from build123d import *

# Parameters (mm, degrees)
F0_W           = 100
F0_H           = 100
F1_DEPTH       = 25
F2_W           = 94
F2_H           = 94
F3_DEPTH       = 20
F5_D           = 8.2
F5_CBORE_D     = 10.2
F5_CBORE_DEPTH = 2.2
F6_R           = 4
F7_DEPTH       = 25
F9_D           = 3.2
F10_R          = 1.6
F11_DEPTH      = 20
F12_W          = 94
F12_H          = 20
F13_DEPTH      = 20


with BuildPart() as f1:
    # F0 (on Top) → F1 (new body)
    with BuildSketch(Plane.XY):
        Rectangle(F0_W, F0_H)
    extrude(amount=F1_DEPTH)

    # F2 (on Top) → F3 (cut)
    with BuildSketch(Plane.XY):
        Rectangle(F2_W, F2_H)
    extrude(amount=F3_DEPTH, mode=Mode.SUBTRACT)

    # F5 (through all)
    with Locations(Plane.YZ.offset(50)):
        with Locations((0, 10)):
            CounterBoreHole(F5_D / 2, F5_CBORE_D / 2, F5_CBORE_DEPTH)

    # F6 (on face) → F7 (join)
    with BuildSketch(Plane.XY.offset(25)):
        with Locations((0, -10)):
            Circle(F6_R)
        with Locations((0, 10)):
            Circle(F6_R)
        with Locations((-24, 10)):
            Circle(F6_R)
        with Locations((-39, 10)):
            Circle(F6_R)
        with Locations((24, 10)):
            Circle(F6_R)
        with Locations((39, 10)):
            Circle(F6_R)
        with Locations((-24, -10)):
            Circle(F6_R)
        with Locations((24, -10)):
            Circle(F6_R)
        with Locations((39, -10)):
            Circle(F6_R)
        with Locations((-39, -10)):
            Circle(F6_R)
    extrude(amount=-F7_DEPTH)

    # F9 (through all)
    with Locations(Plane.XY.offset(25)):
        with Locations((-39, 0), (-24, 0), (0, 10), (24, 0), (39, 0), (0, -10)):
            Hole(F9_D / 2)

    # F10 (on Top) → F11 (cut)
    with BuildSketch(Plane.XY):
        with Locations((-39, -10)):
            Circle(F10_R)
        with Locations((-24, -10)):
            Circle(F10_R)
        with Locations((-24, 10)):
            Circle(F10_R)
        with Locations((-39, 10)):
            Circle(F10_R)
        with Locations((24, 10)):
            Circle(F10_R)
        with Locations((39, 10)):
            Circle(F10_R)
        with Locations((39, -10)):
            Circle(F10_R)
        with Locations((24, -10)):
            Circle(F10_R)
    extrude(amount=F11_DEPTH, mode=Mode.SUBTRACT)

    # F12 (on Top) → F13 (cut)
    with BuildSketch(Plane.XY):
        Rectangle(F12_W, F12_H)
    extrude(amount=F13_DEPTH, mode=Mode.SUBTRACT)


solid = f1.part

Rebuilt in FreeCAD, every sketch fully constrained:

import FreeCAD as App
import Part
import Sketcher

V = App.Vector
Q = App.Units.Quantity

doc = App.newDocument("Part")
params = doc.addObject("Spreadsheet::Sheet", "Params")
for row, (alias, value) in enumerate([
    ("sketch1_width", "100 mm"),
    ("pad1_length", "25 mm"),
    ("sketch2_width", "94 mm"),
    ("pocket1_length", "20 mm"),
    ("sketch3_diameter", "8.2 mm"),
    ("hole_diameter", "8.2 mm"),
    ("hole_cbore_diameter", "10.2 mm"),
    ("hole_cbore_depth", "2.2 mm"),
    ("sketch4_diameter", "8 mm"),
    ("pad2_length", "25 mm"),
    ("sketch5_diameter", "3.2 mm"),
    ("hole2_diameter", "3.2 mm"),
    ("sketch6_diameter", "3.2 mm"),
    ("pocket2_length", "20 mm"),
    ("sketch7_width", "94 mm"),
    ("sketch7_height", "20 mm"),
    ("pocket3_length", "20 mm"),
], start=1):
    params.set(f"A{row}", alias)
    params.set(f"B{row}", "=" + value)
    params.setAlias(f"B{row}", alias)

body = doc.addObject("PartDesign::Body", "Body")

# Sketch on XY plane
sketch1 = body.newObject("Sketcher::SketchObject", "Sketch")
sketch1.AttachmentSupport = (doc.getObject("XY_Plane"), [""])
sketch1.MapMode = "FlatFace"
sketch1.addGeometry([
    Part.LineSegment(V(-50, 50, 0), V(-50, -50, 0)),
    Part.LineSegment(V(-50, -50, 0), V(50, -50, 0)),
    Part.LineSegment(V(50, -50, 0), V(50, 50, 0)),
    Part.LineSegment(V(50, 50, 0), V(-50, 50, 0)),
], False)
sketch1.addConstraint([
    Sketcher.Constraint("Coincident", 0, 2, 1, 1),
    Sketcher.Constraint("Coincident", 1, 2, 2, 1),
    Sketcher.Constraint("Coincident", 2, 2, 3, 1),
    Sketcher.Constraint("Coincident", 3, 2, 0, 1),
    Sketcher.Constraint("Vertical", 0),
    Sketcher.Constraint("Horizontal", 1),
    Sketcher.Constraint("Vertical", 2),
    Sketcher.Constraint("Horizontal", 3),
    Sketcher.Constraint("Symmetric", 0, 2, 2, 2, -1, 1),
    Sketcher.Constraint("Equal", 3, 0),
    Sketcher.Constraint("DistanceX", 1, 1, 1, 2, Q("100 mm")),
])
sketch1.setExpression("Constraints[10]", "Params.sketch1_width")
pad1 = body.newObject("PartDesign::Pad", "Pad")
pad1.Profile = sketch1
pad1.setExpression("Length", "Params.pad1_length")

# Sketch on XY plane
sketch2 = body.newObject("Sketcher::SketchObject", "Sketch001")
sketch2.AttachmentSupport = (doc.getObject("XY_Plane"), [""])
sketch2.MapMode = "FlatFace"
sketch2.addGeometry([
    Part.LineSegment(V(-47, 47, 0), V(-47, -47, 0)),
    Part.LineSegment(V(-47, -47, 0), V(47, -47, 0)),
    Part.LineSegment(V(47, -47, 0), V(47, 47, 0)),
    Part.LineSegment(V(47, 47, 0), V(-47, 47, 0)),
], False)
sketch2.addConstraint([
    Sketcher.Constraint("Coincident", 0, 2, 1, 1),
    Sketcher.Constraint("Coincident", 1, 2, 2, 1),
    Sketcher.Constraint("Coincident", 2, 2, 3, 1),
    Sketcher.Constraint("Coincident", 3, 2, 0, 1),
    Sketcher.Constraint("Vertical", 0),
    Sketcher.Constraint("Horizontal", 1),
    Sketcher.Constraint("Vertical", 2),
    Sketcher.Constraint("Horizontal", 3),
    Sketcher.Constraint("Symmetric", 0, 2, 2, 2, -1, 1),
    Sketcher.Constraint("Equal", 3, 0),
    Sketcher.Constraint("DistanceX", 1, 1, 1, 2, Q("94 mm")),
])
sketch2.setExpression("Constraints[10]", "Params.sketch2_width")
pocket1 = body.newObject("PartDesign::Pocket", "Pocket")
pocket1.Profile = sketch2
pocket1.setExpression("Length", "Params.pocket1_length")
pocket1.Reversed = True

# Sketch on YZ plane
sketch3 = body.newObject("Sketcher::SketchObject", "Sketch002")
sketch3.AttachmentSupport = (doc.getObject("YZ_Plane"), [""])
sketch3.MapMode = "FlatFace"
sketch3.AttachmentOffset = App.Placement(V(0, 0, 50), App.Rotation())
sketch3.addGeometry(Part.Circle(V(0, 10, 0), V(0, 0, 1), 4.1), False)
sketch3.addConstraint([
    Sketcher.Constraint("PointOnObject", 0, 3, -2),
    Sketcher.Constraint("Diameter", 0, Q("8.2 mm")),
    Sketcher.Constraint("DistanceY", -1, 1, 0, 3, Q("10 mm")),
])
sketch3.setExpression("Constraints[1]", "Params.sketch3_diameter")
doc.recompute()
hole = body.newObject("PartDesign::Hole", "Hole")
hole.Profile = sketch3
hole.ThreadType = "None"
hole.setExpression("Diameter", "Params.hole_diameter")
hole.DepthType = "ThroughAll"
hole.HoleCutType = "Counterbore"
hole.setExpression("HoleCutDiameter", "Params.hole_cbore_diameter")
hole.setExpression("HoleCutDepth", "Params.hole_cbore_depth")

# Sketch on XY plane
sketch4 = body.newObject("Sketcher::SketchObject", "Sketch003")
sketch4.AttachmentSupport = (doc.getObject("XY_Plane"), [""])
sketch4.MapMode = "FlatFace"
sketch4.AttachmentOffset = App.Placement(V(0, 0, 25), App.Rotation())
sketch4.addGeometry([
    Part.Circle(V(0, -10, 0), V(0, 0, 1), 4),  # 0
    Part.Circle(V(0, 10, 0), V(0, 0, 1), 4),  # 1
    Part.Circle(V(-24, 10, 0), V(0, 0, 1), 4),  # 2
    Part.Circle(V(-39, 10, 0), V(0, 0, 1), 4),  # 3
    Part.Circle(V(24, 10, 0), V(0, 0, 1), 4),  # 4
    Part.Circle(V(39, 10, 0), V(0, 0, 1), 4),  # 5
    Part.Circle(V(-24, -10, 0), V(0, 0, 1), 4),  # 6
    Part.Circle(V(24, -10, 0), V(0, 0, 1), 4),  # 7
    Part.Circle(V(39, -10, 0), V(0, 0, 1), 4),  # 8
    Part.Circle(V(-39, -10, 0), V(0, 0, 1), 4),  # 9
], False)
sketch4.addConstraint([
    Sketcher.Constraint("Equal", 0, 1),
    Sketcher.Constraint("Equal", 1, 2),
    Sketcher.Constraint("Equal", 2, 3),
    Sketcher.Constraint("Equal", 3, 4),
    Sketcher.Constraint("Equal", 4, 5),
    Sketcher.Constraint("Equal", 5, 6),
    Sketcher.Constraint("Equal", 6, 7),
    Sketcher.Constraint("Equal", 7, 8),
    Sketcher.Constraint("Equal", 8, 9),
    Sketcher.Constraint("Symmetric", 0, 3, 1, 3, -1, 1),
    Sketcher.Constraint("Symmetric", 4, 3, 6, 3, -1, 1),
    Sketcher.Constraint("Symmetric", 2, 3, 7, 3, -1, 1),
    Sketcher.Constraint("Symmetric", 3, 3, 8, 3, -1, 1),
    Sketcher.Constraint("Symmetric", 5, 3, 9, 3, -1, 1),
    Sketcher.Constraint("Symmetric", 2, 3, 4, 3, -2),
    Sketcher.Constraint("Symmetric", 3, 3, 5, 3, -2),
    Sketcher.Constraint("PointOnObject", 0, 3, -2),
    Sketcher.Constraint("Horizontal", 1, 3, 2, 3),
    Sketcher.Constraint("Horizontal", 2, 3, 3, 3),
    Sketcher.Constraint("Diameter", 0, Q("8 mm")),
    Sketcher.Constraint("DistanceY", 0, 3, -1, 1, Q("10 mm")),
    Sketcher.Constraint("DistanceX", 2, 3, -1, 1, Q("24 mm")),
    Sketcher.Constraint("DistanceX", 3, 3, -1, 1, Q("39 mm")),
])
sketch4.setExpression("Constraints[19]", "Params.sketch4_diameter")
pad2 = body.newObject("PartDesign::Pad", "Pad001")
pad2.Profile = sketch4
pad2.setExpression("Length", "Params.pad2_length")
pad2.Reversed = True

# Sketch on XY plane
sketch5 = body.newObject("Sketcher::SketchObject", "Sketch004")
sketch5.AttachmentSupport = (doc.getObject("XY_Plane"), [""])
sketch5.MapMode = "FlatFace"
sketch5.AttachmentOffset = App.Placement(V(0, 0, 25), App.Rotation())
sketch5.addGeometry([
    Part.Circle(V(-39, 0, 0), V(0, 0, 1), 1.6),  # 0
    Part.Circle(V(-24, 0, 0), V(0, 0, 1), 1.6),  # 1
    Part.Circle(V(0, 10, 0), V(0, 0, 1), 1.6),  # 2
    Part.Circle(V(24, 0, 0), V(0, 0, 1), 1.6),  # 3
    Part.Circle(V(39, 0, 0), V(0, 0, 1), 1.6),  # 4
    Part.Circle(V(0, -10, 0), V(0, 0, 1), 1.6),  # 5
], False)
sketch5.addConstraint([
    Sketcher.Constraint("Equal", 0, 1),
    Sketcher.Constraint("Equal", 1, 2),
    Sketcher.Constraint("Equal", 2, 3),
    Sketcher.Constraint("Equal", 3, 4),
    Sketcher.Constraint("Equal", 4, 5),
    Sketcher.Constraint("Symmetric", 1, 3, 3, 3, -1, 1),
    Sketcher.Constraint("Symmetric", 0, 3, 4, 3, -1, 1),
    Sketcher.Constraint("Symmetric", 2, 3, 5, 3, -1, 1),
    Sketcher.Constraint("PointOnObject", 0, 3, -1),
    Sketcher.Constraint("PointOnObject", 1, 3, -1),
    Sketcher.Constraint("PointOnObject", 2, 3, -2),
    Sketcher.Constraint("Diameter", 0, Q("3.2 mm")),
    Sketcher.Constraint("DistanceX", 0, 3, -1, 1, Q("39 mm")),
    Sketcher.Constraint("DistanceX", 1, 3, -1, 1, Q("24 mm")),
    Sketcher.Constraint("DistanceY", -1, 1, 2, 3, Q("10 mm")),
])
sketch5.setExpression("Constraints[11]", "Params.sketch5_diameter")
doc.recompute()
hole2 = body.newObject("PartDesign::Hole", "Hole001")
hole2.Profile = sketch5
hole2.ThreadType = "None"
hole2.setExpression("Diameter", "Params.hole2_diameter")
hole2.DepthType = "ThroughAll"

# Sketch on XY plane
sketch6 = body.newObject("Sketcher::SketchObject", "Sketch005")
sketch6.AttachmentSupport = (doc.getObject("XY_Plane"), [""])
sketch6.MapMode = "FlatFace"
sketch6.addGeometry([
    Part.Circle(V(-39, -10, 0), V(0, 0, 1), 1.6),  # 0
    Part.Circle(V(-24, -10, 0), V(0, 0, 1), 1.6),  # 1
    Part.Circle(V(-24, 10, 0), V(0, 0, 1), 1.6),  # 2
    Part.Circle(V(-39, 10, 0), V(0, 0, 1), 1.6),  # 3
    Part.Circle(V(24, 10, 0), V(0, 0, 1), 1.6),  # 4
    Part.Circle(V(39, 10, 0), V(0, 0, 1), 1.6),  # 5
    Part.Circle(V(39, -10, 0), V(0, 0, 1), 1.6),  # 6
    Part.Circle(V(24, -10, 0), V(0, 0, 1), 1.6),  # 7
], False)
sketch6.addConstraint([
    Sketcher.Constraint("Equal", 0, 1),
    Sketcher.Constraint("Equal", 1, 2),
    Sketcher.Constraint("Equal", 2, 3),
    Sketcher.Constraint("Equal", 3, 4),
    Sketcher.Constraint("Equal", 4, 5),
    Sketcher.Constraint("Equal", 5, 6),
    Sketcher.Constraint("Equal", 6, 7),
    Sketcher.Constraint("Symmetric", 1, 3, 4, 3, -1, 1),
    Sketcher.Constraint("Symmetric", 0, 3, 5, 3, -1, 1),
    Sketcher.Constraint("Symmetric", 3, 3, 6, 3, -1, 1),
    Sketcher.Constraint("Symmetric", 2, 3, 7, 3, -1, 1),
    Sketcher.Constraint("Symmetric", 2, 3, 4, 3, -2),
    Sketcher.Constraint("Symmetric", 3, 3, 5, 3, -2),
    Sketcher.Constraint("Horizontal", 0, 3, 1, 3),
    Sketcher.Constraint("Diameter", 0, Q("3.2 mm")),
    Sketcher.Constraint("DistanceX", 0, 3, -1, 1, Q("39 mm")),
    Sketcher.Constraint("DistanceY", 0, 3, -1, 1, Q("10 mm")),
    Sketcher.Constraint("DistanceX", 1, 3, -1, 1, Q("24 mm")),
])
sketch6.setExpression("Constraints[14]", "Params.sketch6_diameter")
pocket2 = body.newObject("PartDesign::Pocket", "Pocket001")
pocket2.Profile = sketch6
pocket2.setExpression("Length", "Params.pocket2_length")
pocket2.Reversed = True

# Sketch on XY plane
sketch7 = body.newObject("Sketcher::SketchObject", "Sketch006")
sketch7.AttachmentSupport = (doc.getObject("XY_Plane"), [""])
sketch7.MapMode = "FlatFace"
sketch7.addGeometry([
    Part.LineSegment(V(-47, 10, 0), V(-47, -10, 0)),
    Part.LineSegment(V(-47, -10, 0), V(47, -10, 0)),
    Part.LineSegment(V(47, -10, 0), V(47, 10, 0)),
    Part.LineSegment(V(47, 10, 0), V(-47, 10, 0)),
], False)
sketch7.addConstraint([
    Sketcher.Constraint("Coincident", 0, 2, 1, 1),
    Sketcher.Constraint("Coincident", 1, 2, 2, 1),
    Sketcher.Constraint("Coincident", 2, 2, 3, 1),
    Sketcher.Constraint("Coincident", 3, 2, 0, 1),
    Sketcher.Constraint("Vertical", 0),
    Sketcher.Constraint("Horizontal", 1),
    Sketcher.Constraint("Vertical", 2),
    Sketcher.Constraint("Horizontal", 3),
    Sketcher.Constraint("Symmetric", 0, 2, 2, 2, -1, 1),
    Sketcher.Constraint("DistanceX", 1, 1, 1, 2, Q("94 mm")),
    Sketcher.Constraint("DistanceY", 0, 2, 0, 1, Q("20 mm")),
])
sketch7.setExpression("Constraints[9]", "Params.sketch7_width")
sketch7.setExpression("Constraints[10]", "Params.sketch7_height")
pocket3 = body.newObject("PartDesign::Pocket", "Pocket002")
pocket3.Profile = sketch7
pocket3.setExpression("Length", "Params.pocket3_length")
pocket3.Reversed = True

doc.recompute()
